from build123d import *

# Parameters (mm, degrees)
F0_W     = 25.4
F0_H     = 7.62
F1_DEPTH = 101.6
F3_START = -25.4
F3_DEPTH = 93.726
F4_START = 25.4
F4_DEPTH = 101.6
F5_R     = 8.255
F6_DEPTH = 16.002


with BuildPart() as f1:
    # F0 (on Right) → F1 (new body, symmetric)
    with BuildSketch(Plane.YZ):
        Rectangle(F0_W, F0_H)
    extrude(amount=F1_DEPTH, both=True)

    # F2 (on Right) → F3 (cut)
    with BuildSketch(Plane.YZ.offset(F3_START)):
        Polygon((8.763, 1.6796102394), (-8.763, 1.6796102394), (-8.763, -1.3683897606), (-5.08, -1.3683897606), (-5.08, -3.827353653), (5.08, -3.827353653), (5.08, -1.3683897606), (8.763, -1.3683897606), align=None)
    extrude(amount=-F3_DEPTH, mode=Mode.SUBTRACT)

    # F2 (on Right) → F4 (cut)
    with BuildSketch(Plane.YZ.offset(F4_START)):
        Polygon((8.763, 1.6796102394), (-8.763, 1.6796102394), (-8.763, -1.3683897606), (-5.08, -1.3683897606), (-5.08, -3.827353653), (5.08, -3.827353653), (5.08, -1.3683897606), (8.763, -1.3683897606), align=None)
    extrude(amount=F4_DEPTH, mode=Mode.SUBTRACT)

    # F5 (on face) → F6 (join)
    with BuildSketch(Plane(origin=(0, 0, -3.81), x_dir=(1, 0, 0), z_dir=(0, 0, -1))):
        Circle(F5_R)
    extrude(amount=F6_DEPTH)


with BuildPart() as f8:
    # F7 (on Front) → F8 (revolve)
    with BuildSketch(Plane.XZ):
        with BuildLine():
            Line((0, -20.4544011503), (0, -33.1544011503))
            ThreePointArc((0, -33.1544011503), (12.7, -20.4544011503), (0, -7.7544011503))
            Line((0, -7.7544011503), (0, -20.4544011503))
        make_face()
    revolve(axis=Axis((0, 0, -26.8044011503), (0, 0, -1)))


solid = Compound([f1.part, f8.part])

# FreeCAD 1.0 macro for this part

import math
import FreeCAD as App
import Part
import Sketcher
from FreeCAD import Vector
Q = App.Units.Quantity

doc = App.newDocument("Part")
body = doc.addObject("PartDesign::Body", "Body")

# Sketch on YZ plane
sketch1 = body.newObject("Sketcher::SketchObject", "Sketch")
sketch1.AttachmentSupport = (doc.getObject("YZ_Plane"), [""])
sketch1.MapMode = "FlatFace"
sketch1.addGeometry([
    Part.LineSegment(Vector(-13, 4, 0), Vector(-13, -4, 0)),
    Part.LineSegment(Vector(-13, -4, 0), Vector(13, -4, 0)),
    Part.LineSegment(Vector(13, -4, 0), Vector(13, 4, 0)),
    Part.LineSegment(Vector(13, 4, 0), Vector(-13, 4, 0)),
], False)
sketch1.addConstraint([
    Sketcher.Constraint("Coincident", 0, 2, 1, 1),
    Sketcher.Constraint("Coincident", 1, 2, 2, 1),
    Sketcher.Constraint("Coincident", 2, 2, 3, 1),
    Sketcher.Constraint("Coincident", 3, 2, 0, 1),
    Sketcher.Constraint("Vertical", 0),
    Sketcher.Constraint("Horizontal", 1),
    Sketcher.Constraint("Vertical", 2),
    Sketcher.Constraint("Horizontal", 3),
    Sketcher.Constraint("Symmetric", 0, 2, 2, 2, -1, 1),
    Sketcher.Constraint("DistanceX", 1, 1, 1, 2, Q("1 in")),
    Sketcher.Constraint("DistanceY", 0, 2, 0, 1, Q("0.3 in")),
])
pad1 = body.newObject("PartDesign::Pad", "Pad")
pad1.Profile = sketch1
pad1.Length = Q("8 in")
pad1.Midplane = True

# Sketch on YZ plane
sketch2 = body.newObject("Sketcher::SketchObject", "Sketch001")
sketch2.AttachmentSupport = (doc.getObject("YZ_Plane"), [""])
sketch2.MapMode = "FlatFace"
sketch2.AttachmentOffset = App.Placement(Vector(0, 0, -1 * 25.4), App.Rotation())
sketch2.addGeometry([
    Part.LineSegment(Vector(8.8, 1.7, 0), Vector(-8.8, 1.7, 0)),  # 0
    Part.LineSegment(Vector(-8.8, 1.7, 0), Vector(-8.8, -1.4, 0)),  # 1
    Part.LineSegment(Vector(-8.8, -1.4, 0), Vector(-5.1, -1.4, 0)),  # 2
    Part.LineSegment(Vector(-5.1, -1.4, 0), Vector(-5.1, -3.8, 0)),  # 3
    Part.LineSegment(Vector(-5.1, -3.8, 0), Vector(5.1, -3.8, 0)),  # 4
    Part.LineSegment(Vector(5.1, -3.8, 0), Vector(5.1, -1.4, 0)),  # 5
    Part.LineSegment(Vector(5.1, -1.4, 0), Vector(8.8, -1.4, 0)),  # 6
    Part.LineSegment(Vector(8.8, -1.4, 0), Vector(8.8, 1.7, 0)),  # 7
], False)
sketch2.addConstraint([
    Sketcher.Constraint("Coincident", 0, 2, 1, 1),
    Sketcher.Constraint("Coincident", 1, 2, 2, 1),
    Sketcher.Constraint("Coincident", 2, 2, 3, 1),
    Sketcher.Constraint("Coincident", 3, 2, 4, 1),
    Sketcher.Constraint("Coincident", 4, 2, 5, 1),
    Sketcher.Constraint("Coincident", 5, 2, 6, 1),
    Sketcher.Constraint("Coincident", 6, 2, 7, 1),
    Sketcher.Constraint("Coincident", 7, 2, 0, 1),
    Sketcher.Constraint("Horizontal", 0),
    Sketcher.Constraint("Vertical", 1),
    Sketcher.Constraint("Horizontal", 2),
    Sketcher.Constraint("Vertical", 3),
    Sketcher.Constraint("Horizontal", 4),
    Sketcher.Constraint("Vertical", 5),
    Sketcher.Constraint("Horizontal", 6),
    Sketcher.Constraint("Vertical", 7),
    Sketcher.Constraint("Symmetric", 2, 2, 5, 2, -2),
    Sketcher.Constraint("Equal", 2, 6),
    Sketcher.Constraint("DistanceX", 4, 1, 4, 2, Q("0.4 in")),
    Sketcher.Constraint("DistanceX", 0, 2, 0, 1, Q("0.69 in")),
    Sketcher.Constraint("DistanceY", 1, 2, 1, 1, Q("0.12 in")),
    Sketcher.Constraint("DistanceY", 3, 2, 3, 1, 2.458964),
    Sketcher.Constraint("DistanceY", -1, 1, 0, 2, 1.67961),
])
pocket1 = body.newObject("PartDesign::Pocket", "Pocket")
pocket1.Profile = sketch2
pocket1.Length = Q("3.69 in")

# Sketch on YZ plane
sketch3 = body.newObject("Sketcher::SketchObject", "Sketch002")
sketch3.AttachmentSupport = (doc.getObject("YZ_Plane"), [""])
sketch3.MapMode = "FlatFace"
sketch3.AttachmentOffset = App.Placement(Vector(0, 0, 1 * 25.4), App.Rotation())
sketch3.addGeometry([
    Part.LineSegment(Vector(8.8, 1.7, 0), Vector(-8.8, 1.7, 0)),  # 0
    Part.LineSegment(Vector(-8.8, 1.7, 0), Vector(-8.8, -1.4, 0)),  # 1
    Part.LineSegment(Vector(-8.8, -1.4, 0), Vector(-5.1, -1.4, 0)),  # 2
    Part.LineSegment(Vector(-5.1, -1.4, 0), Vector(-5.1, -3.8, 0)),  # 3
    Part.LineSegment(Vector(-5.1, -3.8, 0), Vector(5.1, -3.8, 0)),  # 4
    Part.LineSegment(Vector(5.1, -3.8, 0), Vector(5.1, -1.4, 0)),  # 5
    Part.LineSegment(Vector(5.1, -1.4, 0), Vector(8.8, -1.4, 0)),  # 6
    Part.LineSegment(Vector(8.8, -1.4, 0), Vector(8.8, 1.7, 0)),  # 7
], False)
sketch3.addConstraint([
    Sketcher.Constraint("Coincident", 0, 2, 1, 1),
    Sketcher.Constraint("Coincident", 1, 2, 2, 1),
    Sketcher.Constraint("Coincident", 2, 2, 3, 1),
    Sketcher.Constraint("Coincident", 3, 2, 4, 1),
    Sketcher.Constraint("Coincident", 4, 2, 5, 1),
    Sketcher.Constraint("Coincident", 5, 2, 6, 1),
    Sketcher.Constraint("Coincident", 6, 2, 7, 1),
    Sketcher.Constraint("Coincident", 7, 2, 0, 1),
    Sketcher.Constraint("Horizontal", 0),
    Sketcher.Constraint("Vertical", 1),
    Sketcher.Constraint("Horizontal", 2),
    Sketcher.Constraint("Vertical", 3),
    Sketcher.Constraint("Horizontal", 4),
    Sketcher.Constraint("Vertical", 5),
    Sketcher.Constraint("Horizontal", 6),
    Sketcher.Constraint("Vertical", 7),
    Sketcher.Constraint("Symmetric", 2, 2, 5, 2, -2),
    Sketcher.Constraint("Equal", 2, 6),
    Sketcher.Constraint("DistanceX", 4, 1, 4, 2, Q("0.4 in")),
    Sketcher.Constraint("DistanceX", 0, 2, 0, 1, Q("0.69 in")),
    Sketcher.Constraint("DistanceY", 1, 2, 1, 1, Q("0.12 in")),
    Sketcher.Constraint("DistanceY", 3, 2, 3, 1, 2.458964),
    Sketcher.Constraint("DistanceY", -1, 1, 0, 2, 1.67961),
])
pocket2 = body.newObject("PartDesign::Pocket", "Pocket001")
pocket2.Profile = sketch3
pocket2.Length = Q("4 in")
pocket2.Reversed = True

# Sketch on XY plane
sketch4 = body.newObject("Sketcher::SketchObject", "Sketch003")
sketch4.AttachmentSupport = (doc.getObject("XY_Plane"), [""])
sketch4.MapMode = "FlatFace"
sketch4.AttachmentOffset = App.Placement(Vector(0, 0, -0.15 * 25.4), App.Rotation())
sketch4.addGeometry(Part.Circle(Vector(0, 0, 0), Vector(0, 0, 1), 8), False)
sketch4.addConstraint([
    Sketcher.Constraint("Coincident", 0, 3, -1, 1),
    Sketcher.Constraint("Diameter", 0, Q("0.65 in")),
])
pad2 = body.newObject("PartDesign::Pad", "Pad001")
pad2.Profile = sketch4
pad2.Length = Q("0.63 in")
pad2.Reversed = True
body2 = doc.addObject("PartDesign::Body", "Body001")

# Sketch on XZ plane
sketch5 = body2.newObject("Sketcher::SketchObject", "Sketch004")
sketch5.AttachmentSupport = (doc.getObject("XZ_Plane001"), [""])
sketch5.MapMode = "FlatFace"
sketch5.addGeometry([
    Part.ArcOfCircle(Part.Circle(Vector(0, -20, 0), Vector(0, 0, 1), 13), math.radians(-90), math.radians(90)),
    Part.LineSegment(Vector(0, -8, 0), Vector(0, -33, 0)),
], False)
sketch5.addConstraint([
    Sketcher.Constraint("Coincident", 0, 1, 1, 2),
    Sketcher.Constraint("Coincident", 1, 1, 0, 2),
    Sketcher.Constraint("Vertical", 1),
    Sketcher.Constraint("PointOnObject", 0, 3, -2),
    Sketcher.Constraint("PointOnObject", 0, 1, -2),
    Sketcher.Constraint("Radius", 0, Q("0.5 in")),
    Sketcher.Constraint("DistanceY", 0, 3, -1, 1, 20.454401),
])
revolution = body2.newObject("PartDesign::Revolution", "Revolution")
revolution.Profile = sketch5
revolution.ReferenceAxis = (sketch5, ["V_Axis"])
revolution.Angle = 360

doc.recompute()
